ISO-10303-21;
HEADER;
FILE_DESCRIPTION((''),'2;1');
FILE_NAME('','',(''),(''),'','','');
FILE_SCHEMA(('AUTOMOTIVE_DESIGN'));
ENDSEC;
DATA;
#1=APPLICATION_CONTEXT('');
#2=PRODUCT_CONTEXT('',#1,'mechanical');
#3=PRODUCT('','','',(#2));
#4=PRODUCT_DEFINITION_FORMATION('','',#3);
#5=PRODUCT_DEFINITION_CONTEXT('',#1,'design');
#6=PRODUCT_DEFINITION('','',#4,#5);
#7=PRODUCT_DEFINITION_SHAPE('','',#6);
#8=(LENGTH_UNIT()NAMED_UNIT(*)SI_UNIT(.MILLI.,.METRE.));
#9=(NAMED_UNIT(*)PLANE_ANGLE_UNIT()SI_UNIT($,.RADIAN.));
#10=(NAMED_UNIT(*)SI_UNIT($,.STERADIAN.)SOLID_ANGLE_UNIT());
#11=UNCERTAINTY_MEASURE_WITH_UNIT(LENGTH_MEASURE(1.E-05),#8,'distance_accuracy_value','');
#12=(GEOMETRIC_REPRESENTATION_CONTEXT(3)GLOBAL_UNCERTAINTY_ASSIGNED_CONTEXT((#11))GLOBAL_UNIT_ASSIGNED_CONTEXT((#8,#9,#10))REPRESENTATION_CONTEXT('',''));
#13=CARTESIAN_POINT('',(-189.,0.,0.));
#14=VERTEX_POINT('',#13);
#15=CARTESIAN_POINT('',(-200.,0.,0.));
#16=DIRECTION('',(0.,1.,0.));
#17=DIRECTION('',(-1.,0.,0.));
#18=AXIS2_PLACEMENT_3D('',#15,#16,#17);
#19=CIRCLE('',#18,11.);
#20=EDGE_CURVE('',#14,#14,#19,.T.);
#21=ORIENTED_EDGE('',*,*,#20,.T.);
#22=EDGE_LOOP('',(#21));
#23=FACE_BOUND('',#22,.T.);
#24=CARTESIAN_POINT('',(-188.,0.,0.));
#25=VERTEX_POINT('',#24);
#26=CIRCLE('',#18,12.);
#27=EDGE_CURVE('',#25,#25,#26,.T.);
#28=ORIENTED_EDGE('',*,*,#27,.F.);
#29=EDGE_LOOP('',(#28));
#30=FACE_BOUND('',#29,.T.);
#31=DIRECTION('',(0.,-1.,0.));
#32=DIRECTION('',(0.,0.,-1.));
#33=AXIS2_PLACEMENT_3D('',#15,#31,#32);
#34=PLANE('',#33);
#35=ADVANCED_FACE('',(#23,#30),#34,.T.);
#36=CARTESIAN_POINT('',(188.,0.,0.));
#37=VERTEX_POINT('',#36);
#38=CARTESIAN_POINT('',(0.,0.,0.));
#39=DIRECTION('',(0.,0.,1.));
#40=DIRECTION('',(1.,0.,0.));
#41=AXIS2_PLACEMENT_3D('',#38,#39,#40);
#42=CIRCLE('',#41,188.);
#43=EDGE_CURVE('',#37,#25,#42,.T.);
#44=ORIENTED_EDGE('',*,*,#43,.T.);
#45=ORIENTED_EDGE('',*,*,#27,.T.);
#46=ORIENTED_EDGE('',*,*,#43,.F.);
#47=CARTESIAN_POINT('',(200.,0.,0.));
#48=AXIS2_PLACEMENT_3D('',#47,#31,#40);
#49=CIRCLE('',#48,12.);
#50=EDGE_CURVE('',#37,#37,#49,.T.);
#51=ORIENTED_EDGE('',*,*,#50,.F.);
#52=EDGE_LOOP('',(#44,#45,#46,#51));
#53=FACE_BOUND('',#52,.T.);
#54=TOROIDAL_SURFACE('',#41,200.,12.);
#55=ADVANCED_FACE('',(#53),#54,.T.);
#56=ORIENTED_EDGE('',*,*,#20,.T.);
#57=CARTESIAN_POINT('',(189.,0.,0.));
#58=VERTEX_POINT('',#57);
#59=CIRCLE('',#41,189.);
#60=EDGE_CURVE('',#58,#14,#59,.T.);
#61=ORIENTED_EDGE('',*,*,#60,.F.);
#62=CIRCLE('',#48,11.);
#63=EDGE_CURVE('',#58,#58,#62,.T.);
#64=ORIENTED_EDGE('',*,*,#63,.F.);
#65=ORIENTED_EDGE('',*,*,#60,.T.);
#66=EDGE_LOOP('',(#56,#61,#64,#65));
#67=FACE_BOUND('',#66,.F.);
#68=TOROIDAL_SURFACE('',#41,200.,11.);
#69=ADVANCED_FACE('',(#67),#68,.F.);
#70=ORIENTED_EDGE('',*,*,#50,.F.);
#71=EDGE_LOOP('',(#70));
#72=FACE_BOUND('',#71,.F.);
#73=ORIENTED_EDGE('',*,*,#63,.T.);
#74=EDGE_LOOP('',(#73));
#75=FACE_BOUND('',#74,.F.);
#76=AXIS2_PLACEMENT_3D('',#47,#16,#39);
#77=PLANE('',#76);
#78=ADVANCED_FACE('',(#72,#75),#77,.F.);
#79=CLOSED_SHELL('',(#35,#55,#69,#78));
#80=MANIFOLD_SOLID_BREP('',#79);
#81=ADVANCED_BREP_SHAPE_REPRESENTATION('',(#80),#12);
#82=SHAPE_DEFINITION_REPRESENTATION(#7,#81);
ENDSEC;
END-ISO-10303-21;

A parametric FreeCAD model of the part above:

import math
import FreeCAD as App
import Part
import Sketcher

V = App.Vector

doc = App.newDocument("Part")
body = doc.addObject("PartDesign::Body", "Body")

sketch1 = doc.addObject("Sketcher::SketchObject", "Sketch")
body.addObject(sketch1)
sketch1.AttachmentSupport = (doc.XZ_Plane, [""])
sketch1.MapMode = "FlatFace"
sketch1.addGeometry([
    Part.Circle(V(-200, 0, 0), V(0, 0, 1), 12),
    Part.Circle(V(-200, 0, 0), V(0, 0, 1), 11),
], False)
sketch1.addConstraint([
    Sketcher.Constraint("Coincident", 1, 3, 0, 3),
    Sketcher.Constraint("PointOnObject", 0, 3, -1),
    Sketcher.Constraint("Diameter", 0, 24.0),
    Sketcher.Constraint("Diameter", 1, 22.0),
    Sketcher.Constraint("DistanceX", 0, 3, -1, 1, 200.0),
])

sketch2 = doc.addObject("Sketcher::SketchObject", "Sketch001")
body.addObject(sketch2)
sketch2.AttachmentSupport = (doc.XY_Plane, [""])
sketch2.MapMode = "FlatFace"
sketch2.addGeometry(Part.ArcOfCircle(Part.Circle(V(0, 0, 0), V(0, 0, 1), 200), math.radians(0), math.radians(180)), False)
sketch2.addConstraint([
    Sketcher.Constraint("Coincident", 0, 3, -1, 1),
    Sketcher.Constraint("PointOnObject", 0, 1, -1),
    Sketcher.Constraint("PointOnObject", 0, 2, -1),
    Sketcher.Constraint("Radius", 0, 200.0),
])
doc.recompute()

additivepipe = doc.addObject("PartDesign::AdditivePipe", "AdditivePipe")
body.addObject(additivepipe)
additivepipe.Profile = sketch1
additivepipe.Spine = (sketch2, ["Edge1"])

doc.recompute()
